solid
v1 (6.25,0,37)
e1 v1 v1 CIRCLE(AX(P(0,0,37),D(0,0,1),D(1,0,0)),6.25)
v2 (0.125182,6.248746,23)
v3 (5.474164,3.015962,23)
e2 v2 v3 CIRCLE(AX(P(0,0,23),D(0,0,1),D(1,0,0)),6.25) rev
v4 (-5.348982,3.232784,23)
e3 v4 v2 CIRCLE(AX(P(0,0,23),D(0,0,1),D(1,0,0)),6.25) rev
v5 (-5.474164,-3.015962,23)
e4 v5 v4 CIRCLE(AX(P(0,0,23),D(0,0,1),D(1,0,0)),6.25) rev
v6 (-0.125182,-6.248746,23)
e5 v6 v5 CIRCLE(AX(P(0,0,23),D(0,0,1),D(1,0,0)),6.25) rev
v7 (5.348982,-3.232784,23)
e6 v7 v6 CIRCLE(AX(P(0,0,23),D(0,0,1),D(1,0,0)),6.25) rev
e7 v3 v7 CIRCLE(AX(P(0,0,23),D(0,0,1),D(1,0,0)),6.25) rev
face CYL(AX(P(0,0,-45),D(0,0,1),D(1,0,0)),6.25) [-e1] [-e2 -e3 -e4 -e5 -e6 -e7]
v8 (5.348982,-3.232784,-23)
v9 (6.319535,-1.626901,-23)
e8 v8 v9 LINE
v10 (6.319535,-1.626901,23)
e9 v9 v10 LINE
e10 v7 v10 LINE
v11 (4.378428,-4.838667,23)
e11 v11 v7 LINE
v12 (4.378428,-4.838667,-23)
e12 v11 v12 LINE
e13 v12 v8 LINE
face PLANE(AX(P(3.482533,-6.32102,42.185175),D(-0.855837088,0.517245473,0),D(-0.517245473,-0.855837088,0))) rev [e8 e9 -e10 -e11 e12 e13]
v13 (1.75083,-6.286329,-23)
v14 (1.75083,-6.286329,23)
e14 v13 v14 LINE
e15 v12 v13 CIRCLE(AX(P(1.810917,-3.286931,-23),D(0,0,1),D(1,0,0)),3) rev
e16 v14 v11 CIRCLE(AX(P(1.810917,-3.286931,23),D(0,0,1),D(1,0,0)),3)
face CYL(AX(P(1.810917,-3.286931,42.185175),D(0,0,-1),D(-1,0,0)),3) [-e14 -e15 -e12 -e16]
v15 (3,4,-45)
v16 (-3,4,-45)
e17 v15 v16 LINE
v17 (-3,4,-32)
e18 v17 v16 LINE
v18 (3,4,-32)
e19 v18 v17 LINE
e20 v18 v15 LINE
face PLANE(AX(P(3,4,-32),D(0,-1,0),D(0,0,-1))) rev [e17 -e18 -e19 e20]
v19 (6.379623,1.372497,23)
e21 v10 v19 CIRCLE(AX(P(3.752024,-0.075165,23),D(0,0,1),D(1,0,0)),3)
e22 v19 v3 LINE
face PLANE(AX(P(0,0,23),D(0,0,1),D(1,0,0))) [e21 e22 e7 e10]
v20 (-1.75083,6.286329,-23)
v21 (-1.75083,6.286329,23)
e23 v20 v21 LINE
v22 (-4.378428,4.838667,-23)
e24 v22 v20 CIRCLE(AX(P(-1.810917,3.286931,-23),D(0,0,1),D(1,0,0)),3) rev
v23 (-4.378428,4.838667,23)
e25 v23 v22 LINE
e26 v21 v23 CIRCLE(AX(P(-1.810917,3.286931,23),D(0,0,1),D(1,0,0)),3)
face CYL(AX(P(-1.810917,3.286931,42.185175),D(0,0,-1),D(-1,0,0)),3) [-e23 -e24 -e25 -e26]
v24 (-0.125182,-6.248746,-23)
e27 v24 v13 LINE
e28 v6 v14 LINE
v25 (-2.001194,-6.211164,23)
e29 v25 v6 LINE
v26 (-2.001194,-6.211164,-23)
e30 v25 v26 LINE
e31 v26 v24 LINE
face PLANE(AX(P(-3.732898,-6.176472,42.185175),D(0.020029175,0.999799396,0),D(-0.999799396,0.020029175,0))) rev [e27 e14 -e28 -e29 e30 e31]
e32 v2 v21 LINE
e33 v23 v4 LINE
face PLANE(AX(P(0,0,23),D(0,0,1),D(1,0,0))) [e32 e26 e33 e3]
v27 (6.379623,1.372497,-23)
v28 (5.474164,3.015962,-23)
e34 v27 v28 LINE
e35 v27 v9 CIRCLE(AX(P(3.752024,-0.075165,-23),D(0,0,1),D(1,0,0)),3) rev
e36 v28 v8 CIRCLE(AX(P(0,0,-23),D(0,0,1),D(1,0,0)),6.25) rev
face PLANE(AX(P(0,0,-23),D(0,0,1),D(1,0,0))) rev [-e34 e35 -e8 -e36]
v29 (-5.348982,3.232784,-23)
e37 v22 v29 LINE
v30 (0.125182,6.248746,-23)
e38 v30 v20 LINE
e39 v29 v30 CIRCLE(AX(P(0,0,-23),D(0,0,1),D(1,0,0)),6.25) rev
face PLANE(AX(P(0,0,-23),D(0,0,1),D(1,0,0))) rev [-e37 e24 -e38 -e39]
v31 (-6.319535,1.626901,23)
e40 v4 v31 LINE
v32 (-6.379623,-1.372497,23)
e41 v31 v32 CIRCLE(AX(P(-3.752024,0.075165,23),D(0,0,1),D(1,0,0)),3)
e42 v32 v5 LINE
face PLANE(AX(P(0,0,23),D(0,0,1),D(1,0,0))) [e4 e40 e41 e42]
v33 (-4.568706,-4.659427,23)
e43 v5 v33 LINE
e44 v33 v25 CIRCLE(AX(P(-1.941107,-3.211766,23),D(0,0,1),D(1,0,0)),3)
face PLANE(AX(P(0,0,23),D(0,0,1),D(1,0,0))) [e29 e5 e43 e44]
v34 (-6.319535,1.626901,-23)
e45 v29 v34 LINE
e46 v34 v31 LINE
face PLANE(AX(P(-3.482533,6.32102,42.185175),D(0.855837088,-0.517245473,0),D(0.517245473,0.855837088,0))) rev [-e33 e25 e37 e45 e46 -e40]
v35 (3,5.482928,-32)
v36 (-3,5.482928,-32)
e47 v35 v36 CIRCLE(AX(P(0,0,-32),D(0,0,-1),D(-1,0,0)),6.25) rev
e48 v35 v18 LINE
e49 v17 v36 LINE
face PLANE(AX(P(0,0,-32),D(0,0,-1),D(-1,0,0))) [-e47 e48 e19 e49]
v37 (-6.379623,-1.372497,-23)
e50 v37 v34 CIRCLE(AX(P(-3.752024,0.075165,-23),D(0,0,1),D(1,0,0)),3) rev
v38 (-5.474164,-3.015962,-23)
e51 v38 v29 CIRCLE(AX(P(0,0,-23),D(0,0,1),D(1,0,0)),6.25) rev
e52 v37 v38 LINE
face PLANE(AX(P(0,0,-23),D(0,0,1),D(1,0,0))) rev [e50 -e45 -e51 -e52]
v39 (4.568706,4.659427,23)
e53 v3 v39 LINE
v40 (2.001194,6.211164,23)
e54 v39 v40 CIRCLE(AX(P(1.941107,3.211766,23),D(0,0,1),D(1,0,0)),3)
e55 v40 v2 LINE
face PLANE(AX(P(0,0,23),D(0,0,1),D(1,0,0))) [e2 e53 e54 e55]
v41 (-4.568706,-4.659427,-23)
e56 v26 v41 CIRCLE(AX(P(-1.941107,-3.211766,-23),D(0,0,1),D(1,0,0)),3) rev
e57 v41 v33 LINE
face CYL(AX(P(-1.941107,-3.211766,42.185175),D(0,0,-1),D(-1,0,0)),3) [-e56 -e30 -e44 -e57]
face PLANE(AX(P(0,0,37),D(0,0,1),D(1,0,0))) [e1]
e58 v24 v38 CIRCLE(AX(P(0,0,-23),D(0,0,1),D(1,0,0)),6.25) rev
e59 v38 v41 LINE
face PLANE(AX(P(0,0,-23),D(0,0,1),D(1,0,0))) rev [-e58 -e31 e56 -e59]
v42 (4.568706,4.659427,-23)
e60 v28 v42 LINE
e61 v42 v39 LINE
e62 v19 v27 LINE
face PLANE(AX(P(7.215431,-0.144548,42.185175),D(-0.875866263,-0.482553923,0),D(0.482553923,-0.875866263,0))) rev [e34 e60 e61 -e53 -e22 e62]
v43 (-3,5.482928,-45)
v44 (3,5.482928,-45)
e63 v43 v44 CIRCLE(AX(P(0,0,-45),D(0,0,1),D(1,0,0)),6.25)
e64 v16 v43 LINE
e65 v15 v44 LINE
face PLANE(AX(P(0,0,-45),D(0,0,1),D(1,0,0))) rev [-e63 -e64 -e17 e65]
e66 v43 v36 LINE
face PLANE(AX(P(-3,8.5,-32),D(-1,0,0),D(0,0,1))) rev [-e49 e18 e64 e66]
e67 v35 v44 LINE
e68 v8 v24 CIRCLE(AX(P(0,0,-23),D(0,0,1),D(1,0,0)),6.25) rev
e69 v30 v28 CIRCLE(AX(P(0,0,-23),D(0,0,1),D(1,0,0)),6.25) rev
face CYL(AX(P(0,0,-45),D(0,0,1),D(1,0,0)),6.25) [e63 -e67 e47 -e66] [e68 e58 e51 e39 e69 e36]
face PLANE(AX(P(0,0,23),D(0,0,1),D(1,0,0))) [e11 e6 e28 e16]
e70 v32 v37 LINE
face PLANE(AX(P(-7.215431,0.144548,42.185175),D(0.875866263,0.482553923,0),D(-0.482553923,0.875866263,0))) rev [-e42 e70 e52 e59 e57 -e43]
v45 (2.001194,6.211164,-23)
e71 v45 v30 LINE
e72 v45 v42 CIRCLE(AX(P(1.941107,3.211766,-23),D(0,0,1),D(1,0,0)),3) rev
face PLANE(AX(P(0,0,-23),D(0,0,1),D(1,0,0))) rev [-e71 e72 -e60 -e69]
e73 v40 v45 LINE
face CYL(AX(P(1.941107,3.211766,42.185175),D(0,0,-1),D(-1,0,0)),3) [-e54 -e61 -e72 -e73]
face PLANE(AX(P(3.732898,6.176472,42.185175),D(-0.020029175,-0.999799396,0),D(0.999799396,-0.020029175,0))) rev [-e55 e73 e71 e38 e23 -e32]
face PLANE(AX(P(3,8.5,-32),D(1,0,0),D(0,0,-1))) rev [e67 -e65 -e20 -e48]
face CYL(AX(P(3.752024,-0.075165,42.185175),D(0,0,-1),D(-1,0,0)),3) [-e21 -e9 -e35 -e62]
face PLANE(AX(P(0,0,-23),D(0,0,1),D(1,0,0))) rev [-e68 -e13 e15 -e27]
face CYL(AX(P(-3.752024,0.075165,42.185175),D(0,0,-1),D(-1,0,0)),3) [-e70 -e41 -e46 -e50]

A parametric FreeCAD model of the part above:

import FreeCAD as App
import Part
import Sketcher
Q = App.Units.Quantity


def edges_at(feature, points):
    """Names of the edges that pass closest to the given points."""
    edges = feature.Shape.Edges
    near = lambda p: min(range(len(edges)), key=lambda i: edges[i].distToShape(Part.Vertex(*p))[0])
    return sorted({f"Edge{near(p) + 1}" for p in points})


def add_polygon(sketch, points):
    """Adds a closed chain of lines whose ends are joined by coincident constraints."""
    first, n = sketch.GeometryCount, len(points)
    for a, b in zip(points, points[1:] + points[:1]):
        sketch.addGeometry(Part.LineSegment(App.Vector(*a, 0), App.Vector(*b, 0)), False)
    for i in range(n):
        sketch.addConstraint(Sketcher.Constraint("Coincident", first + i, 2, first + (i + 1) % n, 1))

doc = App.newDocument("Part")
body = doc.addObject("PartDesign::Body", "Body")

# Sketch on XY plane
sketch1 = body.newObject("Sketcher::SketchObject", "Sketch")
sketch1.AttachmentSupport = (doc.getObject("XY_Plane"), [""])
sketch1.MapMode = "FlatFace"
sketch1.addGeometry(Part.Circle(App.Vector(0, 0, 0), App.Vector(0, 0, 1), 6.25), False)
sketch1.addConstraint([
    Sketcher.Constraint("Coincident", 0, 3, -1, 1),
    Sketcher.Constraint("Diameter", 0, Q("12.5 mm")),
])
pad1 = body.newObject("PartDesign::Pad", "Pad")
pad1.Profile = sketch1
pad1.Type = "TwoLengths"
pad1.Length = 37
pad1.Length2 = 45

# Sketch on XY plane
sketch2 = body.newObject("Sketcher::SketchObject", "Sketch001")
sketch2.AttachmentSupport = (doc.getObject("XY_Plane"), [""])
sketch2.MapMode = "FlatFace"
sketch2.AttachmentOffset = App.Placement(App.Vector(0, 0, -45), App.Rotation())
add_polygon(sketch2, [(3, 8.5), (3, 4), (-3, 4), (-3, 8.5)])  # lines 0-3
sketch2.addConstraint([
    Sketcher.Constraint("Vertical", 0),
    Sketcher.Constraint("Horizontal", 1),
    Sketcher.Constraint("Vertical", 2),
    Sketcher.Constraint("Horizontal", 3),
    Sketcher.Constraint("DistanceX", 1, 2, 1, 1, Q("6 mm")),
    Sketcher.Constraint("DistanceY", 0, 2, 0, 1, Q("4.5 mm")),
    Sketcher.Constraint("DistanceX", -1, 1, 0, 2, Q("3 mm")),
    Sketcher.Constraint("DistanceY", -1, 1, 0, 2, Q("4 mm")),
])
pocket1 = body.newObject("PartDesign::Pocket", "Pocket")
pocket1.Profile = sketch2
pocket1.Length = 13
pocket1.Reversed = True

# Sketch on XY plane
sketch3 = body.newObject("Sketcher::SketchObject", "Sketch002")
sketch3.AttachmentSupport = (doc.getObject("XY_Plane"), [""])
sketch3.MapMode = "FlatFace"
sketch3.AttachmentOffset = App.Placement(App.Vector(0, 0, -23), App.Rotation())
add_polygon(sketch3, [(3.732898, 6.176472), (-3.482533, 6.32102), (-7.215431, 0.144548), (-3.732898, -6.176472), (3.482533, -6.32102), (7.215431, -0.144548)])  # lines 0-5
sketch3.addConstraint([
    Sketcher.Constraint("Symmetric", 0, 2, 3, 2, -1, 1),
    Sketcher.Constraint("Symmetric", 1, 2, 4, 2, -1, 1),
    Sketcher.Constraint("Symmetric", 2, 2, 5, 2, -1, 1),
    Sketcher.Constraint("Equal", 0, 1),
    Sketcher.Constraint("Equal", 1, 2),
    Sketcher.Constraint("Distance", 0, Q("7.216878 mm")),
    Sketcher.Constraint("DistanceY", -1, 1, 0, 2, Q("6.32102 mm")),
    Sketcher.Constraint("DistanceX", 1, 2, -1, 1, Q("7.215431 mm")),
    Sketcher.Constraint("DistanceY", -1, 1, 1, 2, Q("0.144548 mm")),
])
pad2 = body.newObject("PartDesign::Pad", "Pad001")
pad2.Profile = sketch3
pad2.Length = 46
doc.recompute()

fillet = body.newObject("PartDesign::Fillet", "Fillet")
fillet.Base = (pad2, edges_at(pad2, [
    (7.215, -0.145, 0),
    (3.733, 6.176, 0),
    (-3.483, 6.321, 0),
    (-7.215, 0.145, 0),
    (-3.733, -6.176, 0),
    (3.483, -6.321, 0),
]))
fillet.Radius = 3

doc.recompute()
